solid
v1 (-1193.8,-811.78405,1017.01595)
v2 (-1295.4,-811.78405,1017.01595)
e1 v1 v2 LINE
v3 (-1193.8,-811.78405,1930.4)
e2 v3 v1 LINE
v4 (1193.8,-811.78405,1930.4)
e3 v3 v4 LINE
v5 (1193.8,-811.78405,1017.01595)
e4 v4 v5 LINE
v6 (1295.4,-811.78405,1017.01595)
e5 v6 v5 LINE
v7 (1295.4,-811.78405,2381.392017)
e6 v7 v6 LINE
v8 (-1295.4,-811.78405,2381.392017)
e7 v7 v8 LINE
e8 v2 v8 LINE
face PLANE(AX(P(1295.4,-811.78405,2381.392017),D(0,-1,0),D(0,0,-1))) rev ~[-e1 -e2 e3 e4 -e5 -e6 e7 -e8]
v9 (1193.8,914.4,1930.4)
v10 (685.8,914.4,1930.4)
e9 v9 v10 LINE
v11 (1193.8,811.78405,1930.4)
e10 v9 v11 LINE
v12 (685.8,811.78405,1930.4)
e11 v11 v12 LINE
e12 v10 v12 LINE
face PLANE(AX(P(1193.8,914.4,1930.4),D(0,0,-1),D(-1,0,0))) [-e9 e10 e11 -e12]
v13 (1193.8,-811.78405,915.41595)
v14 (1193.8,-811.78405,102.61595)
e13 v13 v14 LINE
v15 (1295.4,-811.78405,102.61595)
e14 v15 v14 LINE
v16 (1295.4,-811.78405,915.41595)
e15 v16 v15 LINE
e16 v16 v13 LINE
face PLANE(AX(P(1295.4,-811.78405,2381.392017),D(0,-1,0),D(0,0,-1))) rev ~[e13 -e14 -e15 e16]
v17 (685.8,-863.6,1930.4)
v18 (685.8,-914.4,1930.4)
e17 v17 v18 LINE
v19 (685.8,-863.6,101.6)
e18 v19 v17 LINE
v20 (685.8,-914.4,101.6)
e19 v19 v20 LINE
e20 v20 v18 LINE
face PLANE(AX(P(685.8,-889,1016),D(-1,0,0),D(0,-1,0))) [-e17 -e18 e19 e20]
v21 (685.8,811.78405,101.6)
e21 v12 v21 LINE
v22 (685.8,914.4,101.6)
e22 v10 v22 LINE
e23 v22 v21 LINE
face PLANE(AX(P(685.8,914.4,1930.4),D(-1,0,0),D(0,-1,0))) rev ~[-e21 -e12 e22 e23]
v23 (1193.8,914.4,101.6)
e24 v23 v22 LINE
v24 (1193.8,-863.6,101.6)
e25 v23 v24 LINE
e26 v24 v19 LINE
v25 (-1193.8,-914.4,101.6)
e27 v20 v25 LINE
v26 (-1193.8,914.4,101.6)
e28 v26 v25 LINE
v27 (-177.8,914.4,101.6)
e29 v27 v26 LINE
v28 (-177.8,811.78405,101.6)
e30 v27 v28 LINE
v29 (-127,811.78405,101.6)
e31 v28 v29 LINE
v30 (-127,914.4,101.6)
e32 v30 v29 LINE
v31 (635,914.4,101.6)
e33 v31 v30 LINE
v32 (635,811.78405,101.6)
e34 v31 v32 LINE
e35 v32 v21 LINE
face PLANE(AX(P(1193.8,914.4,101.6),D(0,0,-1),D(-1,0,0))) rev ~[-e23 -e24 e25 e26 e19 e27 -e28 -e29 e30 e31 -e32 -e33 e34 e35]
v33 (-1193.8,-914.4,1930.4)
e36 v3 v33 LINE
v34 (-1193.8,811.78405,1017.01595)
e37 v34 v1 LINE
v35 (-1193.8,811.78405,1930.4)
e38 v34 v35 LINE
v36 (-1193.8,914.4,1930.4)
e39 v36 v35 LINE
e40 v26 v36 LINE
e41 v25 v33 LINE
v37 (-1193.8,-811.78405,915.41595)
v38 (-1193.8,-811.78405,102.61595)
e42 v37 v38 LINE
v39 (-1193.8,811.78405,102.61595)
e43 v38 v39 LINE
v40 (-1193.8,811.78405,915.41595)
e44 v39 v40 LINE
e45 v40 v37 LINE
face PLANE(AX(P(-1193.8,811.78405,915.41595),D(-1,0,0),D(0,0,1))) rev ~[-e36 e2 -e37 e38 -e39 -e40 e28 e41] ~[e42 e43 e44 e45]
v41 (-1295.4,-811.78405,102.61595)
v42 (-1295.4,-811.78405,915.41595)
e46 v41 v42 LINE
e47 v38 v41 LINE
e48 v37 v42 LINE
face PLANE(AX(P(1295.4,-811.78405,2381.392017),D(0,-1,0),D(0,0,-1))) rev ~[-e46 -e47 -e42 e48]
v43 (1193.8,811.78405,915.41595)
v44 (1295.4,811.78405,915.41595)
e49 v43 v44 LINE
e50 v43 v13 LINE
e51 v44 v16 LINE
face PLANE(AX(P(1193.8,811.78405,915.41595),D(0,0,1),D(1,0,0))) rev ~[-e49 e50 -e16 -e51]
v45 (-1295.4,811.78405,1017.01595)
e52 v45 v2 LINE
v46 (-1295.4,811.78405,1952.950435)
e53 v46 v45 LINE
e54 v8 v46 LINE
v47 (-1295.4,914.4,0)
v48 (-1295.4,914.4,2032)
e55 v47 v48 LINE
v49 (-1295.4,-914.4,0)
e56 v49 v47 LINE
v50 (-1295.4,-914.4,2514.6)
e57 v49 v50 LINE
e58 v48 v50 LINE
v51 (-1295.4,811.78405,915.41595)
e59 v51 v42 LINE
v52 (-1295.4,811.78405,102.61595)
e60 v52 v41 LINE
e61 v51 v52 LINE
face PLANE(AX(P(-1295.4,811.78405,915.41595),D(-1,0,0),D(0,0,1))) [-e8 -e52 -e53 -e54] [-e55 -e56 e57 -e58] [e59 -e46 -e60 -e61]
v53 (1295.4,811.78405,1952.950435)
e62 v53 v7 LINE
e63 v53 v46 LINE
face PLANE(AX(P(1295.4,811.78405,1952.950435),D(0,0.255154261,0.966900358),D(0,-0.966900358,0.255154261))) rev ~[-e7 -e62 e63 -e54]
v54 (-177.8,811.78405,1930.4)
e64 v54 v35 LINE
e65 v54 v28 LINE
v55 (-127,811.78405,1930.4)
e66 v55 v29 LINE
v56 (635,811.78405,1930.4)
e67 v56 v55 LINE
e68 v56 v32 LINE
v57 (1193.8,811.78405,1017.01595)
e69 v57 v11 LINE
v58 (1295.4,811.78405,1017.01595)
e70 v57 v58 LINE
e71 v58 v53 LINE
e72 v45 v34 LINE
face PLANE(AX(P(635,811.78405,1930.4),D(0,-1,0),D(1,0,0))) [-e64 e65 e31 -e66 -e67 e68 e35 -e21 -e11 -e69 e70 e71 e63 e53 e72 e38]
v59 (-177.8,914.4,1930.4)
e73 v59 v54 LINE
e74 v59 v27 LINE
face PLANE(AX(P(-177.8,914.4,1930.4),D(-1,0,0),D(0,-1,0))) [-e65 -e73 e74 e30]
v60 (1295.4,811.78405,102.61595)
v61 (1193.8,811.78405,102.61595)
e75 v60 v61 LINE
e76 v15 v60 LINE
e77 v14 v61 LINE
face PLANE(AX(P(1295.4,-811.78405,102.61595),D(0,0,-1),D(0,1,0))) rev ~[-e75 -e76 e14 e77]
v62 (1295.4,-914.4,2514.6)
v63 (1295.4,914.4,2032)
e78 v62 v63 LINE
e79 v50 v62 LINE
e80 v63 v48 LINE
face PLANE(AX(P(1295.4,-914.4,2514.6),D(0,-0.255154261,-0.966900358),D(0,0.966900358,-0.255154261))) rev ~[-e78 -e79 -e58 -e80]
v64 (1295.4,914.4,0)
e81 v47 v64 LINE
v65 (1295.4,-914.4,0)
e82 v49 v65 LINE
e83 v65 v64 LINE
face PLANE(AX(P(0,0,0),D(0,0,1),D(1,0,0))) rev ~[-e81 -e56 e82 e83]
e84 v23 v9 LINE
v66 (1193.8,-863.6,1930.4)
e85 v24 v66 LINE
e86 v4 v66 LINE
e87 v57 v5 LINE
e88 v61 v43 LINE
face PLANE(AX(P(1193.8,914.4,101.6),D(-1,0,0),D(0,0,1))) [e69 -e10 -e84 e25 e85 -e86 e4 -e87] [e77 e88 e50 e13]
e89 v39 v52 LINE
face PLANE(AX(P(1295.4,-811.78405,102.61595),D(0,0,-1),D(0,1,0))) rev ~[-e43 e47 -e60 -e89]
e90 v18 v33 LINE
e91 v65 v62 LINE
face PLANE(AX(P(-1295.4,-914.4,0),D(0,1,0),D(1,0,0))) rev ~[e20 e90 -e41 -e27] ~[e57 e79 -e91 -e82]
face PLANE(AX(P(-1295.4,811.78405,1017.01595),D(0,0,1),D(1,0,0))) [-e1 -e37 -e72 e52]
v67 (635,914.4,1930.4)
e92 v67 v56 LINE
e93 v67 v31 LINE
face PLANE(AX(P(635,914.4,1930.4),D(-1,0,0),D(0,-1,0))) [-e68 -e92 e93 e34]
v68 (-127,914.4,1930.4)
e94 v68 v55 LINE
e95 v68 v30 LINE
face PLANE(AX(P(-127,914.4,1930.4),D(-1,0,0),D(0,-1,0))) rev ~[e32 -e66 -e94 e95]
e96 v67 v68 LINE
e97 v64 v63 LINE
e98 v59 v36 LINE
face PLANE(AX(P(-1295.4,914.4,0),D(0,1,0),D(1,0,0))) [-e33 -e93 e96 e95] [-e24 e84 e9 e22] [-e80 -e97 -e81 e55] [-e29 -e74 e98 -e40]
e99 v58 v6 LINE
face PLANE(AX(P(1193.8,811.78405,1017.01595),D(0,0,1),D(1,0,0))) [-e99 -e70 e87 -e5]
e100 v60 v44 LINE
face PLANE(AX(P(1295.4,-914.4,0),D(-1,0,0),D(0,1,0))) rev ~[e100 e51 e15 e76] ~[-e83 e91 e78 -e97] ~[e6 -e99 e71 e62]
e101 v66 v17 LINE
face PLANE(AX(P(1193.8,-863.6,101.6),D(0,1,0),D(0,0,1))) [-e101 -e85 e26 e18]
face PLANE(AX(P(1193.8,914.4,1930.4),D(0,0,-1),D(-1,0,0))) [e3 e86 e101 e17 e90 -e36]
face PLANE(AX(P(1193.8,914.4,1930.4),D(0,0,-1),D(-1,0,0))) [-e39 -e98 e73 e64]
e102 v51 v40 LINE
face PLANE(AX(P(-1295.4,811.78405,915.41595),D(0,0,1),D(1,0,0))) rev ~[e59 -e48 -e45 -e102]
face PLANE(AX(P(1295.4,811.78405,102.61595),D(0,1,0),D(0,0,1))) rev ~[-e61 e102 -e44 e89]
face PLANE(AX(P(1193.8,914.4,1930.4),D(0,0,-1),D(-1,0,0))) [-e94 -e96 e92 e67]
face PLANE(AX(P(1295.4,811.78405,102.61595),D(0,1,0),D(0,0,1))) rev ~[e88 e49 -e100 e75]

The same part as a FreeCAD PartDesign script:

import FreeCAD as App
import Part
import Sketcher
Q = App.Units.Quantity

doc = App.newDocument("Part")
body = doc.addObject("PartDesign::Body", "Body")

sketch1 = body.newObject("Sketcher::SketchObject", "Sketch")
sketch1.AttachmentSupport = (doc.getObject("XY_Plane"), [""])
sketch1.MapMode = "FlatFace"
sketch1.addGeometry(Part.LineSegment(App.Vector(-1295.4, 914.4, 0), App.Vector(-1295.4, -914.4, 0)), False)
sketch1.addGeometry(Part.LineSegment(App.Vector(-1295.4, -914.4, 0), App.Vector(1295.4, -914.4, 0)), False)
sketch1.addGeometry(Part.LineSegment(App.Vector(1295.4, -914.4, 0), App.Vector(1295.4, 914.4, 0)), False)
sketch1.addGeometry(Part.LineSegment(App.Vector(1295.4, 914.4, 0), App.Vector(-1295.4, 914.4, 0)), False)
sketch1.addConstraint(Sketcher.Constraint("Coincident", 0, 2, 1, 1))
sketch1.addConstraint(Sketcher.Constraint("Coincident", 1, 2, 2, 1))
sketch1.addConstraint(Sketcher.Constraint("Coincident", 2, 2, 3, 1))
sketch1.addConstraint(Sketcher.Constraint("Coincident", 3, 2, 0, 1))
sketch1.addConstraint(Sketcher.Constraint("Vertical", 0))
sketch1.addConstraint(Sketcher.Constraint("Horizontal", 1))
sketch1.addConstraint(Sketcher.Constraint("Vertical", 2))
sketch1.addConstraint(Sketcher.Constraint("Horizontal", 3))
sketch1.addConstraint(Sketcher.Constraint("Symmetric", 0, 2, 2, 2, -1, 1))
sketch1.addConstraint(Sketcher.Constraint("DistanceX", 1, 1, 1, 2, Q("102 in")))
sketch1.addConstraint(Sketcher.Constraint("DistanceY", 0, 2, 0, 1, Q("72 in")))
pad1 = body.newObject("PartDesign::Pad", "Pad")
pad1.Profile = sketch1
pad1.Length = Q("99 in")

sketch2 = body.newObject("Sketcher::SketchObject", "Sketch001")
sketch2.AttachmentSupport = (doc.getObject("YZ_Plane"), [""])
sketch2.MapMode = "FlatFace"
sketch2.AttachmentOffset = App.Placement(App.Vector(0, 0, 51 * 25.4), App.Rotation())
sketch2.addGeometry(Part.LineSegment(App.Vector(914.4, 2514.6, 0), App.Vector(-914.4, 2514.6, 0)), False)
sketch2.addGeometry(Part.LineSegment(App.Vector(-914.4, 2514.6, 0), App.Vector(914.4, 2032, 0)), False)
sketch2.addGeometry(Part.LineSegment(App.Vector(914.4, 2032, 0), App.Vector(914.4, 2514.6, 0)), False)
sketch2.addConstraint(Sketcher.Constraint("Coincident", 0, 2, 1, 1))
sketch2.addConstraint(Sketcher.Constraint("Coincident", 1, 2, 2, 1))
sketch2.addConstraint(Sketcher.Constraint("Coincident", 2, 2, 0, 1))
sketch2.addConstraint(Sketcher.Constraint("Horizontal", 0))
sketch2.addConstraint(Sketcher.Constraint("Vertical", 2))
sketch2.addConstraint(Sketcher.Constraint("DistanceX", 0, 2, 0, 1, Q("72 in")))
sketch2.addConstraint(Sketcher.Constraint("DistanceY", 2, 1, 2, 2, Q("19 in")))
sketch2.addConstraint(Sketcher.Constraint("DistanceX", 0, 2, -1, 1, Q("36 in")))
sketch2.addConstraint(Sketcher.Constraint("DistanceY", -1, 1, 0, 2, Q("99 in")))
pocket1 = body.newObject("PartDesign::Pocket", "Pocket")
pocket1.Profile = sketch2
pocket1.Type = "ThroughAll"

sketch3 = body.newObject("Sketcher::SketchObject", "Sketch002")
sketch3.AttachmentSupport = (doc.getObject("YZ_Plane"), [""])
sketch3.MapMode = "FlatFace"
sketch3.AttachmentOffset = App.Placement(App.Vector(0, 0, 51 * 25.4), App.Rotation())
sketch3.addGeometry(Part.LineSegment(App.Vector(811.78405, 102.61595, 0), App.Vector(811.78405, 1952.950435, 0)), False)
sketch3.addGeometry(Part.LineSegment(App.Vector(811.78405, 1952.950435, 0), App.Vector(-811.78405, 2381.392017, 0)), False)
sketch3.addGeometry(Part.LineSegment(App.Vector(-811.78405, 2381.392017, 0), App.Vector(-811.78405, 102.61595, 0)), False)
sketch3.addGeometry(Part.LineSegment(App.Vector(-811.78405, 102.61595, 0), App.Vector(811.78405, 102.61595, 0)), False)
sketch3.addConstraint(Sketcher.Constraint("Coincident", 0, 2, 1, 1))
sketch3.addConstraint(Sketcher.Constraint("Coincident", 1, 2, 2, 1))
sketch3.addConstraint(Sketcher.Constraint("Coincident", 2, 2, 3, 1))
sketch3.addConstraint(Sketcher.Constraint("Coincident", 3, 2, 0, 1))
sketch3.addConstraint(Sketcher.Constraint("Vertical", 0))
sketch3.addConstraint(Sketcher.Constraint("Vertical", 2))
sketch3.addConstraint(Sketcher.Constraint("Horizontal", 3))
sketch3.addConstraint(Sketcher.Constraint("DistanceX", 3, 1, 3, 2, Q("1623.5681 mm")))
sketch3.addConstraint(Sketcher.Constraint("DistanceY", 0, 1, 0, 2, Q("1850.334485 mm")))
sketch3.addConstraint(Sketcher.Constraint("DistanceY", 2, 2, 2, 1, Q("2278.776067 mm")))
sketch3.addConstraint(Sketcher.Constraint("DistanceX", -1, 1, 0, 2, Q("811.78405 mm")))
sketch3.addConstraint(Sketcher.Constraint("DistanceY", -1, 1, 2, 2, Q("102.61595 mm")))
pocket2 = body.newObject("PartDesign::Pocket", "Pocket001")
pocket2.Profile = sketch3
pocket2.Type = "ThroughAll"

sketch4 = body.newObject("Sketcher::SketchObject", "Sketch003")
sketch4.AttachmentSupport = (doc.getObject("XZ_Plane"), [""])
sketch4.MapMode = "FlatFace"
sketch4.AttachmentOffset = App.Placement(App.Vector(0, 0, -36 * 25.4), App.Rotation())
sketch4.addGeometry(Part.LineSegment(App.Vector(1193.8, 1930.4, 0), App.Vector(1193.8, 101.6, 0)), False)
sketch4.addGeometry(Part.LineSegment(App.Vector(1193.8, 101.6, 0), App.Vector(-1193.8, 101.6, 0)), False)
sketch4.addGeometry(Part.LineSegment(App.Vector(-1193.8, 101.6, 0), App.Vector(-1193.8, 1930.4, 0)), False)
sketch4.addGeometry(Part.LineSegment(App.Vector(-1193.8, 1930.4, 0), App.Vector(1193.8, 1930.4, 0)), False)
sketch4.addConstraint(Sketcher.Constraint("Coincident", 0, 2, 1, 1))
sketch4.addConstraint(Sketcher.Constraint("Coincident", 1, 2, 2, 1))
sketch4.addConstraint(Sketcher.Constraint("Coincident", 2, 2, 3, 1))
sketch4.addConstraint(Sketcher.Constraint("Coincident", 3, 2, 0, 1))
sketch4.addConstraint(Sketcher.Constraint("Vertical", 0))
sketch4.addConstraint(Sketcher.Constraint("Horizontal", 1))
sketch4.addConstraint(Sketcher.Constraint("Vertical", 2))
sketch4.addConstraint(Sketcher.Constraint("Horizontal", 3))
sketch4.addConstraint(Sketcher.Constraint("DistanceX", 1, 2, 1, 1, Q("94 in")))
sketch4.addConstraint(Sketcher.Constraint("DistanceY", 0, 2, 0, 1, Q("72 in")))
sketch4.addConstraint(Sketcher.Constraint("DistanceX", -1, 1, 0, 2, Q("47 in")))
sketch4.addConstraint(Sketcher.Constraint("DistanceY", -1, 1, 0, 2, Q("4 in")))
pocket3 = body.newObject("PartDesign::Pocket", "Pocket002")
pocket3.Profile = sketch4
pocket3.Type = "ThroughAll"
pocket3.Reversed = True

sketch5 = body.newObject("Sketcher::SketchObject", "Sketch004")
sketch5.AttachmentSupport = (doc.getObject("XZ_Plane"), [""])
sketch5.MapMode = "FlatFace"
sketch5.AttachmentOffset = App.Placement(App.Vector(0, 0, -811.78405), App.Rotation())
sketch5.addGeometry(Part.LineSegment(App.Vector(-1295.4, 1017.01595, 0), App.Vector(-1295.4, 915.41595, 0)), False)
sketch5.addGeometry(Part.LineSegment(App.Vector(-1295.4, 915.41595, 0), App.Vector(-1193.8, 915.41595, 0)), False)
sketch5.addGeometry(Part.LineSegment(App.Vector(-1193.8, 915.41595, 0), App.Vector(-1193.8, 1017.01595, 0)), False)
sketch5.addGeometry(Part.LineSegment(App.Vector(-1193.8, 1017.01595, 0), App.Vector(-1295.4, 1017.01595, 0)), False)
sketch5.addGeometry(Part.LineSegment(App.Vector(1193.8, 1017.01595, 0), App.Vector(1193.8, 915.41595, 0)), False)
sketch5.addGeometry(Part.LineSegment(App.Vector(1193.8, 915.41595, 0), App.Vector(1295.4, 915.41595, 0)), False)
sketch5.addGeometry(Part.LineSegment(App.Vector(1295.4, 915.41595, 0), App.Vector(1295.4, 1017.01595, 0)), False)
sketch5.addGeometry(Part.LineSegment(App.Vector(1295.4, 1017.01595, 0), App.Vector(1193.8, 1017.01595, 0)), False)
sketch5.addConstraint(Sketcher.Constraint("Coincident", 0, 2, 1, 1))
sketch5.addConstraint(Sketcher.Constraint("Coincident", 1, 2, 2, 1))
sketch5.addConstraint(Sketcher.Constraint("Coincident", 2, 2, 3, 1))
sketch5.addConstraint(Sketcher.Constraint("Coincident", 3, 2, 0, 1))
sketch5.addConstraint(Sketcher.Constraint("Coincident", 4, 2, 5, 1))
sketch5.addConstraint(Sketcher.Constraint("Coincident", 5, 2, 6, 1))
sketch5.addConstraint(Sketcher.Constraint("Coincident", 6, 2, 7, 1))
sketch5.addConstraint(Sketcher.Constraint("Coincident", 7, 2, 4, 1))
sketch5.addConstraint(Sketcher.Constraint("Vertical", 0))
sketch5.addConstraint(Sketcher.Constraint("Horizontal", 1))
sketch5.addConstraint(Sketcher.Constraint("Vertical", 2))
sketch5.addConstraint(Sketcher.Constraint("Horizontal", 3))
sketch5.addConstraint(Sketcher.Constraint("Vertical", 4))
sketch5.addConstraint(Sketcher.Constraint("Horizontal", 5))
sketch5.addConstraint(Sketcher.Constraint("Vertical", 6))
sketch5.addConstraint(Sketcher.Constraint("Horizontal", 7))
sketch5.addConstraint(Sketcher.Constraint("Symmetric", 1, 2, 4, 2, -2))
sketch5.addConstraint(Sketcher.Constraint("Symmetric", 3, 2, 6, 2, -2))
sketch5.addConstraint(Sketcher.Constraint("Equal", 7, 0))
sketch5.addConstraint(Sketcher.Constraint("DistanceX", 1, 1, 1, 2, Q("4 in")))
sketch5.addConstraint(Sketcher.Constraint("DistanceX", 0, 2, -1, 1, Q("51 in")))
sketch5.addConstraint(Sketcher.Constraint("DistanceY", -1, 1, 0, 2, Q("915.41595 mm")))
pad2 = body.newObject("PartDesign::Pad", "Pad001")
pad2.Profile = sketch5
pad2.Length = Q("64 in")

sketch6 = body.newObject("Sketcher::SketchObject", "Sketch005")
sketch6.AttachmentSupport = (doc.getObject("YZ_Plane"), [""])
sketch6.MapMode = "FlatFace"
sketch6.AttachmentOffset = App.Placement(App.Vector(0, 0, 47 * 25.4), App.Rotation())
sketch6.addGeometry(Part.LineSegment(App.Vector(-863.6, 1930.4, 0), App.Vector(-863.6, 101.6, 0)), False)
sketch6.addGeometry(Part.LineSegment(App.Vector(-863.6, 101.6, 0), App.Vector(-914.4, 101.6, 0)), False)
sketch6.addGeometry(Part.LineSegment(App.Vector(-914.4, 101.6, 0), App.Vector(-914.4, 1930.4, 0)), False)
sketch6.addGeometry(Part.LineSegment(App.Vector(-914.4, 1930.4, 0), App.Vector(-863.6, 1930.4, 0)), False)
sketch6.addConstraint(Sketcher.Constraint("Coincident", 0, 2, 1, 1))
sketch6.addConstraint(Sketcher.Constraint("Coincident", 1, 2, 2, 1))
sketch6.addConstraint(Sketcher.Constraint("Coincident", 2, 2, 3, 1))
sketch6.addConstraint(Sketcher.Constraint("Coincident", 3, 2, 0, 1))
sketch6.addConstraint(Sketcher.Constraint("Vertical", 0))
sketch6.addConstraint(Sketcher.Constraint("Horizontal", 1))
sketch6.addConstraint(Sketcher.Constraint("Vertical", 2))
sketch6.addConstraint(Sketcher.Constraint("Horizontal", 3))
sketch6.addConstraint(Sketcher.Constraint("DistanceX", 1, 2, 1, 1, Q("2 in")))
sketch6.addConstraint(Sketcher.Constraint("DistanceY", 0, 2, 0, 1, Q("72 in")))
sketch6.addConstraint(Sketcher.Constraint("DistanceX", 0, 2, -1, 1, Q("34 in")))
sketch6.addConstraint(Sketcher.Constraint("DistanceY", -1, 1, 0, 2, Q("4 in")))
pad3 = body.newObject("PartDesign::Pad", "Pad002")
pad3.Profile = sketch6
pad3.Length = Q("20 in")
pad3.Reversed = True

sketch7 = body.newObject("Sketcher::SketchObject", "Sketch006")
sketch7.AttachmentSupport = (doc.getObject("XY_Plane"), [""])
sketch7.MapMode = "FlatFace"
sketch7.AttachmentOffset = App.Placement(App.Vector(0, 0, 76 * 25.4), App.Rotation())
sketch7.addGeometry(Part.LineSegment(App.Vector(635, 811.78405, 0), App.Vector(635, 914.4, 0)), False)
sketch7.addGeometry(Part.LineSegment(App.Vector(635, 914.4, 0), App.Vector(685.8, 914.4, 0)), False)
sketch7.addGeometry(Part.LineSegment(App.Vector(685.8, 914.4, 0), App.Vector(685.8, 811.78405, 0)), False)
sketch7.addGeometry(Part.LineSegment(App.Vector(685.8, 811.78405, 0), App.Vector(635, 811.78405, 0)), False)
sketch7.addGeometry(Part.LineSegment(App.Vector(-177.8, 811.78405, 0), App.Vector(-177.8, 914.4, 0)), False)
sketch7.addGeometry(Part.LineSegment(App.Vector(-177.8, 914.4, 0), App.Vector(-127, 914.4, 0)), False)
sketch7.addGeometry(Part.LineSegment(App.Vector(-127, 914.4, 0), App.Vector(-127, 811.78405, 0)), False)
sketch7.addGeometry(Part.LineSegment(App.Vector(-127, 811.78405, 0), App.Vector(-177.8, 811.78405, 0)), False)
sketch7.addConstraint(Sketcher.Constraint("Coincident", 0, 2, 1, 1))
sketch7.addConstraint(Sketcher.Constraint("Coincident", 1, 2, 2, 1))
sketch7.addConstraint(Sketcher.Constraint("Coincident", 2, 2, 3, 1))
sketch7.addConstraint(Sketcher.Constraint("Coincident", 3, 2, 0, 1))
sketch7.addConstraint(Sketcher.Constraint("Coincident", 4, 2, 5, 1))
sketch7.addConstraint(Sketcher.Constraint("Coincident", 5, 2, 6, 1))
sketch7.addConstraint(Sketcher.Constraint("Coincident", 6, 2, 7, 1))
sketch7.addConstraint(Sketcher.Constraint("Coincident", 7, 2, 4, 1))
sketch7.addConstraint(Sketcher.Constraint("Vertical", 0))
sketch7.addConstraint(Sketcher.Constraint("Horizontal", 1))
sketch7.addConstraint(Sketcher.Constraint("Vertical", 2))
sketch7.addConstraint(Sketcher.Constraint("Horizontal", 3))
sketch7.addConstraint(Sketcher.Constraint("Vertical", 4))
sketch7.addConstraint(Sketcher.Constraint("Horizontal", 5))
sketch7.addConstraint(Sketcher.Constraint("Vertical", 6))
sketch7.addConstraint(Sketcher.Constraint("Horizontal", 7))
sketch7.addConstraint(Sketcher.Constraint("Horizontal", 1, 2, 4, 2))
sketch7.addConstraint(Sketcher.Constraint("Horizontal", 3, 2, 6, 2))
sketch7.addConstraint(Sketcher.Constraint("Equal", 3, 5))
sketch7.addConstraint(Sketcher.Constraint("DistanceX", 1, 1, 1, 2, Q("2 in")))
sketch7.addConstraint(Sketcher.Constraint("DistanceX", -1, 1, 0, 2, Q("25 in")))
sketch7.addConstraint(Sketcher.Constraint("DistanceY", -1, 1, 0, 2, Q("36 in")))
sketch7.addConstraint(Sketcher.Constraint("DistanceX", 4, 2, -1, 1, Q("7 in")))
sketch7.addConstraint(Sketcher.Constraint("DistanceY", 0, 1, 0, 2, Q("102.61595 mm")))
pad4 = body.newObject("PartDesign::Pad", "Pad003")
pad4.Profile = sketch7
pad4.Length = Q("72 in")
pad4.Reversed = True

doc.recompute()
